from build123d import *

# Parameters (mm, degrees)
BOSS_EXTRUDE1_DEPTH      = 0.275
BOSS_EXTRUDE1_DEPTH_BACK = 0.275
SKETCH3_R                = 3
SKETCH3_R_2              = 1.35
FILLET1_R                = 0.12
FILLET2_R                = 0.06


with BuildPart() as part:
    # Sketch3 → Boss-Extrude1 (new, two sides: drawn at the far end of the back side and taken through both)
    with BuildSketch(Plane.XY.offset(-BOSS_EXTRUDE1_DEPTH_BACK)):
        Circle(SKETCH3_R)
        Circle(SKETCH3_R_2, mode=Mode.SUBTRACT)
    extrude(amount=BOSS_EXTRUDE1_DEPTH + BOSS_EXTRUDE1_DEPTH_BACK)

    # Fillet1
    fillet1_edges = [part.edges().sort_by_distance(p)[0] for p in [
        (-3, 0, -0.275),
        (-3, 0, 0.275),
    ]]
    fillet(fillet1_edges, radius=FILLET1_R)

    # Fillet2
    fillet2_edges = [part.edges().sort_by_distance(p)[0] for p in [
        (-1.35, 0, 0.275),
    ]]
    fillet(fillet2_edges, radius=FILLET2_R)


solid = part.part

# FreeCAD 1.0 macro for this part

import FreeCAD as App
import Part
import Sketcher

V = App.Vector


def edges_at(feature, points):
    """Names of the edges that pass closest to the given points."""
    edges = feature.Shape.Edges
    near = lambda p: min(range(len(edges)), key=lambda i: edges[i].distToShape(Part.Vertex(*p))[0])
    return sorted({f"Edge{near(p) + 1}" for p in points})

doc = App.newDocument("Part")
body = doc.addObject("PartDesign::Body", "Body")

# Sketch on XY plane
sketch1 = body.newObject("Sketcher::SketchObject", "Sketch")
sketch1.AttachmentSupport = (doc.getObject("XY_Plane"), [""])
sketch1.MapMode = "FlatFace"
sketch1.addGeometry([
    Part.Circle(V(0, 0, 0), V(0, 0, 1), 3),
    Part.Circle(V(0, 0, 0), V(0, 0, 1), 1.4),
], False)
sketch1.addConstraint([
    Sketcher.Constraint("Coincident", 0, 3, -1, 1),
    Sketcher.Constraint("Coincident", 1, 3, -1, 1),
    Sketcher.Constraint("Diameter", 0, 6.0),
    Sketcher.Constraint("Diameter", 1, 2.7),
])
pad1 = body.newObject("PartDesign::Pad", "Pad")
pad1.Profile = sketch1
pad1.Type = "TwoLengths"
pad1.Length = 0.275
pad1.Length2 = 0.275
doc.recompute()

fillet = body.newObject("PartDesign::Fillet", "Fillet")
fillet.Base = (pad1, edges_at(pad1, [(-3, 0, -0.275), (-3, 0, 0.275)]))
fillet.Radius = 0.12
doc.recompute()

fillet2 = body.newObject("PartDesign::Fillet", "Fillet001")
fillet2.Base = (fillet, edges_at(fillet, [(-1.35, 0, 0.275)]))
fillet2.Radius = 0.06

doc.recompute()
